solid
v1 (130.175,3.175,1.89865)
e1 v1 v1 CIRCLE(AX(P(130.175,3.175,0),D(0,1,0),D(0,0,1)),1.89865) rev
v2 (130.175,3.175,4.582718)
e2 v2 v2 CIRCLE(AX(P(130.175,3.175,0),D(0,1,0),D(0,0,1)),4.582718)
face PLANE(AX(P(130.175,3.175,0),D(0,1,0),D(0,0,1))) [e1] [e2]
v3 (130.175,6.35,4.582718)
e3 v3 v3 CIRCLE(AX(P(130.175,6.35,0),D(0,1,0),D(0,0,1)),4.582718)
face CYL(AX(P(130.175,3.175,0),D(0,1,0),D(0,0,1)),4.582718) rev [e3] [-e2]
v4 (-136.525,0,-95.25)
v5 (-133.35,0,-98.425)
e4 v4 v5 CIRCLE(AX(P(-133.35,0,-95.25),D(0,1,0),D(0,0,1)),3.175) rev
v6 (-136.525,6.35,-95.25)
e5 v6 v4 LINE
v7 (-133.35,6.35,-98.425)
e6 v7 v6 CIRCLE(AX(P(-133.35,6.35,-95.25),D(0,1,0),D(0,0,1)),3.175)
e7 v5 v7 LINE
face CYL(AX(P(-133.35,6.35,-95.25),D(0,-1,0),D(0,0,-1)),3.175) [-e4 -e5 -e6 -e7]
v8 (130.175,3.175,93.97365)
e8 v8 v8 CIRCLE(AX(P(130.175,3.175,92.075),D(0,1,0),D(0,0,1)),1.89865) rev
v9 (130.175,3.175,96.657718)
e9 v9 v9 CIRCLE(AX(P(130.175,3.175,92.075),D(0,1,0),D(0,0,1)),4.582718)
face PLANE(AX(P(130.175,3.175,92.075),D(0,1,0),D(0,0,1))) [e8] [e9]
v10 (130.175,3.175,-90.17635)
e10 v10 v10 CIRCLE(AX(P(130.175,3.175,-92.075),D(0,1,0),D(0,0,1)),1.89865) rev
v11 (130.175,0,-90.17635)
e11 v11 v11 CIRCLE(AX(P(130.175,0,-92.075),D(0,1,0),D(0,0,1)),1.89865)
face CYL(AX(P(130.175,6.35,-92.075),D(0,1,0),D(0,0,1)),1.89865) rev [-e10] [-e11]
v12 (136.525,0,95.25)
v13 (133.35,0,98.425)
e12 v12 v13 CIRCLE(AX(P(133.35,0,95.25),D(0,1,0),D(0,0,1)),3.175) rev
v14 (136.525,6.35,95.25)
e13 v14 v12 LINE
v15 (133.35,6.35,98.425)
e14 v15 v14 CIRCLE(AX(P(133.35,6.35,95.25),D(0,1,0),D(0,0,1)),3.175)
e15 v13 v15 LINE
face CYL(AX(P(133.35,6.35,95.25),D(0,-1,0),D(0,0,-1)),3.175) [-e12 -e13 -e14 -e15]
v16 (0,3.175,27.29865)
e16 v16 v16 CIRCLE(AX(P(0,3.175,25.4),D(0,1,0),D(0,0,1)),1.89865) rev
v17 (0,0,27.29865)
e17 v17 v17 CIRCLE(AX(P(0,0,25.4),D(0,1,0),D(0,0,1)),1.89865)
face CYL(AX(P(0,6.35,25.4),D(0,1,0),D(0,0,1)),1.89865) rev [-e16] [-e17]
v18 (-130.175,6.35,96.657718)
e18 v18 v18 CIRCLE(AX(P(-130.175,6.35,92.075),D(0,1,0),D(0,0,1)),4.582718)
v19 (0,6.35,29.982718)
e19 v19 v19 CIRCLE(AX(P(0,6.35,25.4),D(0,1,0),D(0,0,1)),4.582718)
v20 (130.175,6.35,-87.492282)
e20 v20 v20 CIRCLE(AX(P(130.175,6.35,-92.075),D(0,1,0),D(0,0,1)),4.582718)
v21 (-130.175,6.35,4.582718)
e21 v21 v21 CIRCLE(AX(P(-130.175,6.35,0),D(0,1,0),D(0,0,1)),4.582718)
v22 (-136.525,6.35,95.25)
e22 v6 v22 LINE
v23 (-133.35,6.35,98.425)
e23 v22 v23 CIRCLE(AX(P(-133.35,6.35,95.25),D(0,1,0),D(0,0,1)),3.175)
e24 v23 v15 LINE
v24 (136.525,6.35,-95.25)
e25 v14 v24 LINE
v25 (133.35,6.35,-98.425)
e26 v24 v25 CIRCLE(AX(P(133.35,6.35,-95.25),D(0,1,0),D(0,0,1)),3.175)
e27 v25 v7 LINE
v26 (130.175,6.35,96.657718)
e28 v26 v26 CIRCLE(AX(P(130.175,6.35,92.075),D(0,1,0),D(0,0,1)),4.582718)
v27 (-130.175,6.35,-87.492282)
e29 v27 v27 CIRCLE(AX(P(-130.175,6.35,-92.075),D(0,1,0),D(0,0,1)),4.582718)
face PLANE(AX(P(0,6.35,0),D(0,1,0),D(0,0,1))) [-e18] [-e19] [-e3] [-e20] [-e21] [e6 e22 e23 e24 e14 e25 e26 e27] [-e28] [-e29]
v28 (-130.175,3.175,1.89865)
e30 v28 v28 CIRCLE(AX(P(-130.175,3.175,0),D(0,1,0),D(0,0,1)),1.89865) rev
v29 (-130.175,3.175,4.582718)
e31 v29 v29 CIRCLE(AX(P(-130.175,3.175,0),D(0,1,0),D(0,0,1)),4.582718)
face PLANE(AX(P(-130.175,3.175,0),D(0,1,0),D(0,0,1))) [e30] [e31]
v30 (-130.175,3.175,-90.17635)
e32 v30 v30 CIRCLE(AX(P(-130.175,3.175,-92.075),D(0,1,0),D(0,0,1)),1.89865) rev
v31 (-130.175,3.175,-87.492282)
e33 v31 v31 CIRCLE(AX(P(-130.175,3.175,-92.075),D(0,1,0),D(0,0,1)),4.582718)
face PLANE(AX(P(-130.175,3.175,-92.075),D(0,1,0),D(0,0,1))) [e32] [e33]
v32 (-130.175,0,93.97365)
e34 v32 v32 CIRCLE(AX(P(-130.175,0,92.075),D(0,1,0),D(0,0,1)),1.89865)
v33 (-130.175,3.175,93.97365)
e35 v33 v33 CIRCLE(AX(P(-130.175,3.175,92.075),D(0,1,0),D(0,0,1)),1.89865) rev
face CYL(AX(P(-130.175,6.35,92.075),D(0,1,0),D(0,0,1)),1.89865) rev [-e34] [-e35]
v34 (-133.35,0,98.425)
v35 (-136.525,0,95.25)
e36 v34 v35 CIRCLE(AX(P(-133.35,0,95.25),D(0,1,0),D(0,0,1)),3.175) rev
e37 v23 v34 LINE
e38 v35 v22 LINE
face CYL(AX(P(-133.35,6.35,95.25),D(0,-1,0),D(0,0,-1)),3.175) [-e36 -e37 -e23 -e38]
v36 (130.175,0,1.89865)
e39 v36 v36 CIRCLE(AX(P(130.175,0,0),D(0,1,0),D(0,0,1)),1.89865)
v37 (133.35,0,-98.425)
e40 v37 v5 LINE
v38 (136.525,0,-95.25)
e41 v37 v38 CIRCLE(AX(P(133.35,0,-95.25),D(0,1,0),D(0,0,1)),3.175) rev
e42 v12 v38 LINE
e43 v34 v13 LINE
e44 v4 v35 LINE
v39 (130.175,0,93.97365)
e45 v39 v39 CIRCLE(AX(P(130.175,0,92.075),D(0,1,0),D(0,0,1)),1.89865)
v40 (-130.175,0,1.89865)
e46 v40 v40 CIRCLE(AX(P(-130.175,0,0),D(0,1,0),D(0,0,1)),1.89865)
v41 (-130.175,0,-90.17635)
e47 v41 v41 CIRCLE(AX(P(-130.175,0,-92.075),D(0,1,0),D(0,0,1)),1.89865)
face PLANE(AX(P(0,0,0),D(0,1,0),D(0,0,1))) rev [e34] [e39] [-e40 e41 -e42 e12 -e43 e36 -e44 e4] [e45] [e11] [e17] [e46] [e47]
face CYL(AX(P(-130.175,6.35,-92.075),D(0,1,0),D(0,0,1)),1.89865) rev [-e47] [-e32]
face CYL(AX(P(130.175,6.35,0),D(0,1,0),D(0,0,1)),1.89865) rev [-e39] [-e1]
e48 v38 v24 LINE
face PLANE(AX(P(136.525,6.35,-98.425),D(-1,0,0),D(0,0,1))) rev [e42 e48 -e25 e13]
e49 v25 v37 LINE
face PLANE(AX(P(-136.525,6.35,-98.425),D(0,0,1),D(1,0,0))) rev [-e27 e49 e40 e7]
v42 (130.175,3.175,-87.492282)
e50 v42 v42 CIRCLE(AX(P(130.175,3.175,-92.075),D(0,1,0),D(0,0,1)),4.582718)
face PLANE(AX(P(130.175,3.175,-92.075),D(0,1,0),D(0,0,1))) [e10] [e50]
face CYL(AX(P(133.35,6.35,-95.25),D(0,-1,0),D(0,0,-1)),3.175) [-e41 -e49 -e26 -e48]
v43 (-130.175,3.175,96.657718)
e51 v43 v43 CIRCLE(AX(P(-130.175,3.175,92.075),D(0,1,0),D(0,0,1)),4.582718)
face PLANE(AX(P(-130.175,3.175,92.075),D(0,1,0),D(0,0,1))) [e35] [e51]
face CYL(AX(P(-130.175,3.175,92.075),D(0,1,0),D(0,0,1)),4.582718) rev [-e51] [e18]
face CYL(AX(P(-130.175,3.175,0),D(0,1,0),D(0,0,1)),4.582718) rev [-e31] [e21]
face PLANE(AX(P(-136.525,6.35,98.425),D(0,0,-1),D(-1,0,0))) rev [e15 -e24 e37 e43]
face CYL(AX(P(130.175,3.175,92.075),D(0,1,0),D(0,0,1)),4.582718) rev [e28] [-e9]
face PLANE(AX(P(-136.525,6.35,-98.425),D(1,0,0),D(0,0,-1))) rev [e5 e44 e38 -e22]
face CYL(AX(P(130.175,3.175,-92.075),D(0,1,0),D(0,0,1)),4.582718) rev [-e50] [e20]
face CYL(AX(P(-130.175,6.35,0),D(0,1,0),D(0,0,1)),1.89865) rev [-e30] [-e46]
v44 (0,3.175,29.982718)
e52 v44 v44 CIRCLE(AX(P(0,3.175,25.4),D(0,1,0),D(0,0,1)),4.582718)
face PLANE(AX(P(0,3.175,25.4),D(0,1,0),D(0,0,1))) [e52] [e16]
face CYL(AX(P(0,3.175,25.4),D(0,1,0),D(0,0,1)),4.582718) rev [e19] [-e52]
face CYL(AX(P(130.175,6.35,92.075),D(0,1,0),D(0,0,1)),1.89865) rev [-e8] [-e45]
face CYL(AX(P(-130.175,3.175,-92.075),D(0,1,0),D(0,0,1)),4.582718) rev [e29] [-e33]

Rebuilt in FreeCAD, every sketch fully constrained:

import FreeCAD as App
import Part
import Sketcher
Q = App.Units.Quantity


def edges_at(feature, points):
    """Names of the edges that pass closest to the given points."""
    edges = feature.Shape.Edges
    near = lambda p: min(range(len(edges)), key=lambda i: edges[i].distToShape(Part.Vertex(*p))[0])
    return sorted({f"Edge{near(p) + 1}" for p in points})

doc = App.newDocument("Part")
body = doc.addObject("PartDesign::Body", "Body")

# Sketch on XZ plane
sketch1 = doc.addObject("Sketcher::SketchObject", "Sketch")
body.addObject(sketch1)
sketch1.AttachmentSupport = (doc.XZ_Plane, [""])
sketch1.MapMode = "FlatFace"
sketch1.addGeometry(Part.LineSegment(App.Vector(-136.525, -98.425, 0), App.Vector(-136.525, 98.425, 0)), False)
sketch1.addGeometry(Part.LineSegment(App.Vector(-136.525, 98.425, 0), App.Vector(136.525, 98.425, 0)), False)
sketch1.addGeometry(Part.LineSegment(App.Vector(136.525, 98.425, 0), App.Vector(136.525, -98.425, 0)), False)
sketch1.addGeometry(Part.LineSegment(App.Vector(136.525, -98.425, 0), App.Vector(-136.525, -98.425, 0)), False)
sketch1.addConstraint(Sketcher.Constraint("Coincident", 0, 2, 1, 1))
sketch1.addConstraint(Sketcher.Constraint("Coincident", 1, 2, 2, 1))
sketch1.addConstraint(Sketcher.Constraint("Coincident", 2, 2, 3, 1))
sketch1.addConstraint(Sketcher.Constraint("Coincident", 3, 2, 0, 1))
sketch1.addConstraint(Sketcher.Constraint("Vertical", 0))
sketch1.addConstraint(Sketcher.Constraint("Horizontal", 1))
sketch1.addConstraint(Sketcher.Constraint("Vertical", 2))
sketch1.addConstraint(Sketcher.Constraint("Horizontal", 3))
sketch1.addConstraint(Sketcher.Constraint("Symmetric", 0, 2, 2, 2, -1, 1))
sketch1.addConstraint(Sketcher.Constraint("DistanceX", 1, 1, 1, 2, Q("10.75 in")))
sketch1.addConstraint(Sketcher.Constraint("DistanceY", 0, 1, 0, 2, Q("7.75 in")))
pad1 = doc.addObject("PartDesign::Pad", "Pad")
body.addObject(pad1)
pad1.Profile = sketch1
pad1.Length = Q("0.25 in")
pad1.Reversed = True

# Sketch on XZ plane
sketch2 = doc.addObject("Sketcher::SketchObject", "Sketch001")
body.addObject(sketch2)
sketch2.AttachmentSupport = (doc.XZ_Plane, [""])
sketch2.MapMode = "FlatFace"
sketch2.AttachmentOffset = App.Placement(App.Vector(0, 0, -0.25 * 25.4), App.Rotation())
sketch2.addGeometry(Part.Circle(App.Vector(-130.175, -92.075, 0), App.Vector(0, 0, 1), 1.89865), False)
sketch2.addGeometry(Part.Circle(App.Vector(130.175, -92.075, 0), App.Vector(0, 0, 1), 1.89865), False)
sketch2.addGeometry(Part.Circle(App.Vector(130.175, 92.075, 0), App.Vector(0, 0, 1), 1.89865), False)
sketch2.addGeometry(Part.Circle(App.Vector(-130.175, 92.075, 0), App.Vector(0, 0, 1), 1.89865), False)
sketch2.addGeometry(Part.Circle(App.Vector(-130.175, 0, 0), App.Vector(0, 0, 1), 1.89865), False)
sketch2.addGeometry(Part.Circle(App.Vector(130.175, 0, 0), App.Vector(0, 0, 1), 1.89865), False)
sketch2.addGeometry(Part.Circle(App.Vector(0, 25.4, 0), App.Vector(0, 0, 1), 1.89865), False)
sketch2.addConstraint(Sketcher.Constraint("Equal", 0, 1))
sketch2.addConstraint(Sketcher.Constraint("Equal", 1, 2))
sketch2.addConstraint(Sketcher.Constraint("Equal", 2, 3))
sketch2.addConstraint(Sketcher.Constraint("Equal", 3, 4))
sketch2.addConstraint(Sketcher.Constraint("Equal", 4, 5))
sketch2.addConstraint(Sketcher.Constraint("Equal", 5, 6))
sketch2.addConstraint(Sketcher.Constraint("Symmetric", 0, 3, 2, 3, -1, 1))
sketch2.addConstraint(Sketcher.Constraint("Symmetric", 1, 3, 3, 3, -1, 1))
sketch2.addConstraint(Sketcher.Constraint("Symmetric", 4, 3, 5, 3, -1, 1))
sketch2.addConstraint(Sketcher.Constraint("Symmetric", 0, 3, 1, 3, -2))
sketch2.addConstraint(Sketcher.Constraint("PointOnObject", 4, 3, -1))
sketch2.addConstraint(Sketcher.Constraint("PointOnObject", 6, 3, -2))
sketch2.addConstraint(Sketcher.Constraint("Vertical", 3, 3, 4, 3))
sketch2.addConstraint(Sketcher.Constraint("DistanceY", -1, 1, 6, 3, Q("1 in")))
sketch2.addConstraint(Sketcher.Constraint("Diameter", 0, Q("0.1495 in")))
sketch2.addConstraint(Sketcher.Constraint("DistanceX", 0, 3, 1, 3, Q("10.25 in")))
sketch2.addConstraint(Sketcher.Constraint("DistanceY", 1, 3, 2, 3, Q("7.25 in")))
doc.recompute()
hole = doc.addObject("PartDesign::Hole", "Hole")
body.addObject(hole)
hole.Profile = sketch2
hole.ThreadType = "None"
hole.Diameter = Q("0.1495 in")
hole.DepthType = "ThroughAll"
hole.Reversed = True

# Sketch on XZ plane
sketch3 = doc.addObject("Sketcher::SketchObject", "Sketch002")
body.addObject(sketch3)
sketch3.AttachmentSupport = (doc.XZ_Plane, [""])
sketch3.MapMode = "FlatFace"
sketch3.AttachmentOffset = App.Placement(App.Vector(0, 0, -0.25 * 25.4), App.Rotation())
sketch3.addGeometry(Part.Circle(App.Vector(-130.175, -92.075, 0), App.Vector(0, 0, 1), 4.582718), False)
sketch3.addGeometry(Part.Circle(App.Vector(130.175, -92.075, 0), App.Vector(0, 0, 1), 4.582718), False)
sketch3.addGeometry(Part.Circle(App.Vector(130.175, 92.075, 0), App.Vector(0, 0, 1), 4.582718), False)
sketch3.addGeometry(Part.Circle(App.Vector(-130.175, 92.075, 0), App.Vector(0, 0, 1), 4.582718), False)
sketch3.addGeometry(Part.Circle(App.Vector(-130.175, 0, 0), App.Vector(0, 0, 1), 4.582718), False)
sketch3.addGeometry(Part.Circle(App.Vector(130.175, 0, 0), App.Vector(0, 0, 1), 4.582718), False)
sketch3.addGeometry(Part.Circle(App.Vector(0, 25.4, 0), App.Vector(0, 0, 1), 4.582718), False)
sketch3.addConstraint(Sketcher.Constraint("Equal", 0, 1))
sketch3.addConstraint(Sketcher.Constraint("Equal", 1, 2))
sketch3.addConstraint(Sketcher.Constraint("Equal", 2, 3))
sketch3.addConstraint(Sketcher.Constraint("Equal", 3, 4))
sketch3.addConstraint(Sketcher.Constraint("Equal", 4, 5))
sketch3.addConstraint(Sketcher.Constraint("Equal", 5, 6))
sketch3.addConstraint(Sketcher.Constraint("Symmetric", 0, 3, 2, 3, -1, 1))
sketch3.addConstraint(Sketcher.Constraint("Symmetric", 1, 3, 3, 3, -1, 1))
sketch3.addConstraint(Sketcher.Constraint("Symmetric", 4, 3, 5, 3, -1, 1))
sketch3.addConstraint(Sketcher.Constraint("Symmetric", 0, 3, 1, 3, -2))
sketch3.addConstraint(Sketcher.Constraint("PointOnObject", 4, 3, -1))
sketch3.addConstraint(Sketcher.Constraint("PointOnObject", 6, 3, -2))
sketch3.addConstraint(Sketcher.Constraint("Vertical", 3, 3, 4, 3))
sketch3.addConstraint(Sketcher.Constraint("DistanceY", -1, 1, 6, 3, Q("1 in")))
sketch3.addConstraint(Sketcher.Constraint("DistanceX", 0, 3, 1, 3, Q("10.25 in")))
sketch3.addConstraint(Sketcher.Constraint("DistanceY", 1, 3, 2, 3, Q("7.25 in")))
sketch3.addConstraint(Sketcher.Constraint("Diameter", 0, 9.165436))
pocket1 = doc.addObject("PartDesign::Pocket", "Pocket")
body.addObject(pocket1)
pocket1.Profile = sketch3
pocket1.Length = Q("0.125 in")
pocket1.Reversed = True
doc.recompute()

fillet = doc.addObject("PartDesign::Fillet", "Fillet")
body.addObject(fillet)
fillet.Base = (pocket1, edges_at(pocket1, [
    (136.525, 3.175, 98.425),
    (-136.525, 3.175, 98.425),
    (-136.525, 3.175, -98.425),
    (136.525, 3.175, -98.425),
]))
fillet.Radius = Q("0.125 in")

doc.recompute()
